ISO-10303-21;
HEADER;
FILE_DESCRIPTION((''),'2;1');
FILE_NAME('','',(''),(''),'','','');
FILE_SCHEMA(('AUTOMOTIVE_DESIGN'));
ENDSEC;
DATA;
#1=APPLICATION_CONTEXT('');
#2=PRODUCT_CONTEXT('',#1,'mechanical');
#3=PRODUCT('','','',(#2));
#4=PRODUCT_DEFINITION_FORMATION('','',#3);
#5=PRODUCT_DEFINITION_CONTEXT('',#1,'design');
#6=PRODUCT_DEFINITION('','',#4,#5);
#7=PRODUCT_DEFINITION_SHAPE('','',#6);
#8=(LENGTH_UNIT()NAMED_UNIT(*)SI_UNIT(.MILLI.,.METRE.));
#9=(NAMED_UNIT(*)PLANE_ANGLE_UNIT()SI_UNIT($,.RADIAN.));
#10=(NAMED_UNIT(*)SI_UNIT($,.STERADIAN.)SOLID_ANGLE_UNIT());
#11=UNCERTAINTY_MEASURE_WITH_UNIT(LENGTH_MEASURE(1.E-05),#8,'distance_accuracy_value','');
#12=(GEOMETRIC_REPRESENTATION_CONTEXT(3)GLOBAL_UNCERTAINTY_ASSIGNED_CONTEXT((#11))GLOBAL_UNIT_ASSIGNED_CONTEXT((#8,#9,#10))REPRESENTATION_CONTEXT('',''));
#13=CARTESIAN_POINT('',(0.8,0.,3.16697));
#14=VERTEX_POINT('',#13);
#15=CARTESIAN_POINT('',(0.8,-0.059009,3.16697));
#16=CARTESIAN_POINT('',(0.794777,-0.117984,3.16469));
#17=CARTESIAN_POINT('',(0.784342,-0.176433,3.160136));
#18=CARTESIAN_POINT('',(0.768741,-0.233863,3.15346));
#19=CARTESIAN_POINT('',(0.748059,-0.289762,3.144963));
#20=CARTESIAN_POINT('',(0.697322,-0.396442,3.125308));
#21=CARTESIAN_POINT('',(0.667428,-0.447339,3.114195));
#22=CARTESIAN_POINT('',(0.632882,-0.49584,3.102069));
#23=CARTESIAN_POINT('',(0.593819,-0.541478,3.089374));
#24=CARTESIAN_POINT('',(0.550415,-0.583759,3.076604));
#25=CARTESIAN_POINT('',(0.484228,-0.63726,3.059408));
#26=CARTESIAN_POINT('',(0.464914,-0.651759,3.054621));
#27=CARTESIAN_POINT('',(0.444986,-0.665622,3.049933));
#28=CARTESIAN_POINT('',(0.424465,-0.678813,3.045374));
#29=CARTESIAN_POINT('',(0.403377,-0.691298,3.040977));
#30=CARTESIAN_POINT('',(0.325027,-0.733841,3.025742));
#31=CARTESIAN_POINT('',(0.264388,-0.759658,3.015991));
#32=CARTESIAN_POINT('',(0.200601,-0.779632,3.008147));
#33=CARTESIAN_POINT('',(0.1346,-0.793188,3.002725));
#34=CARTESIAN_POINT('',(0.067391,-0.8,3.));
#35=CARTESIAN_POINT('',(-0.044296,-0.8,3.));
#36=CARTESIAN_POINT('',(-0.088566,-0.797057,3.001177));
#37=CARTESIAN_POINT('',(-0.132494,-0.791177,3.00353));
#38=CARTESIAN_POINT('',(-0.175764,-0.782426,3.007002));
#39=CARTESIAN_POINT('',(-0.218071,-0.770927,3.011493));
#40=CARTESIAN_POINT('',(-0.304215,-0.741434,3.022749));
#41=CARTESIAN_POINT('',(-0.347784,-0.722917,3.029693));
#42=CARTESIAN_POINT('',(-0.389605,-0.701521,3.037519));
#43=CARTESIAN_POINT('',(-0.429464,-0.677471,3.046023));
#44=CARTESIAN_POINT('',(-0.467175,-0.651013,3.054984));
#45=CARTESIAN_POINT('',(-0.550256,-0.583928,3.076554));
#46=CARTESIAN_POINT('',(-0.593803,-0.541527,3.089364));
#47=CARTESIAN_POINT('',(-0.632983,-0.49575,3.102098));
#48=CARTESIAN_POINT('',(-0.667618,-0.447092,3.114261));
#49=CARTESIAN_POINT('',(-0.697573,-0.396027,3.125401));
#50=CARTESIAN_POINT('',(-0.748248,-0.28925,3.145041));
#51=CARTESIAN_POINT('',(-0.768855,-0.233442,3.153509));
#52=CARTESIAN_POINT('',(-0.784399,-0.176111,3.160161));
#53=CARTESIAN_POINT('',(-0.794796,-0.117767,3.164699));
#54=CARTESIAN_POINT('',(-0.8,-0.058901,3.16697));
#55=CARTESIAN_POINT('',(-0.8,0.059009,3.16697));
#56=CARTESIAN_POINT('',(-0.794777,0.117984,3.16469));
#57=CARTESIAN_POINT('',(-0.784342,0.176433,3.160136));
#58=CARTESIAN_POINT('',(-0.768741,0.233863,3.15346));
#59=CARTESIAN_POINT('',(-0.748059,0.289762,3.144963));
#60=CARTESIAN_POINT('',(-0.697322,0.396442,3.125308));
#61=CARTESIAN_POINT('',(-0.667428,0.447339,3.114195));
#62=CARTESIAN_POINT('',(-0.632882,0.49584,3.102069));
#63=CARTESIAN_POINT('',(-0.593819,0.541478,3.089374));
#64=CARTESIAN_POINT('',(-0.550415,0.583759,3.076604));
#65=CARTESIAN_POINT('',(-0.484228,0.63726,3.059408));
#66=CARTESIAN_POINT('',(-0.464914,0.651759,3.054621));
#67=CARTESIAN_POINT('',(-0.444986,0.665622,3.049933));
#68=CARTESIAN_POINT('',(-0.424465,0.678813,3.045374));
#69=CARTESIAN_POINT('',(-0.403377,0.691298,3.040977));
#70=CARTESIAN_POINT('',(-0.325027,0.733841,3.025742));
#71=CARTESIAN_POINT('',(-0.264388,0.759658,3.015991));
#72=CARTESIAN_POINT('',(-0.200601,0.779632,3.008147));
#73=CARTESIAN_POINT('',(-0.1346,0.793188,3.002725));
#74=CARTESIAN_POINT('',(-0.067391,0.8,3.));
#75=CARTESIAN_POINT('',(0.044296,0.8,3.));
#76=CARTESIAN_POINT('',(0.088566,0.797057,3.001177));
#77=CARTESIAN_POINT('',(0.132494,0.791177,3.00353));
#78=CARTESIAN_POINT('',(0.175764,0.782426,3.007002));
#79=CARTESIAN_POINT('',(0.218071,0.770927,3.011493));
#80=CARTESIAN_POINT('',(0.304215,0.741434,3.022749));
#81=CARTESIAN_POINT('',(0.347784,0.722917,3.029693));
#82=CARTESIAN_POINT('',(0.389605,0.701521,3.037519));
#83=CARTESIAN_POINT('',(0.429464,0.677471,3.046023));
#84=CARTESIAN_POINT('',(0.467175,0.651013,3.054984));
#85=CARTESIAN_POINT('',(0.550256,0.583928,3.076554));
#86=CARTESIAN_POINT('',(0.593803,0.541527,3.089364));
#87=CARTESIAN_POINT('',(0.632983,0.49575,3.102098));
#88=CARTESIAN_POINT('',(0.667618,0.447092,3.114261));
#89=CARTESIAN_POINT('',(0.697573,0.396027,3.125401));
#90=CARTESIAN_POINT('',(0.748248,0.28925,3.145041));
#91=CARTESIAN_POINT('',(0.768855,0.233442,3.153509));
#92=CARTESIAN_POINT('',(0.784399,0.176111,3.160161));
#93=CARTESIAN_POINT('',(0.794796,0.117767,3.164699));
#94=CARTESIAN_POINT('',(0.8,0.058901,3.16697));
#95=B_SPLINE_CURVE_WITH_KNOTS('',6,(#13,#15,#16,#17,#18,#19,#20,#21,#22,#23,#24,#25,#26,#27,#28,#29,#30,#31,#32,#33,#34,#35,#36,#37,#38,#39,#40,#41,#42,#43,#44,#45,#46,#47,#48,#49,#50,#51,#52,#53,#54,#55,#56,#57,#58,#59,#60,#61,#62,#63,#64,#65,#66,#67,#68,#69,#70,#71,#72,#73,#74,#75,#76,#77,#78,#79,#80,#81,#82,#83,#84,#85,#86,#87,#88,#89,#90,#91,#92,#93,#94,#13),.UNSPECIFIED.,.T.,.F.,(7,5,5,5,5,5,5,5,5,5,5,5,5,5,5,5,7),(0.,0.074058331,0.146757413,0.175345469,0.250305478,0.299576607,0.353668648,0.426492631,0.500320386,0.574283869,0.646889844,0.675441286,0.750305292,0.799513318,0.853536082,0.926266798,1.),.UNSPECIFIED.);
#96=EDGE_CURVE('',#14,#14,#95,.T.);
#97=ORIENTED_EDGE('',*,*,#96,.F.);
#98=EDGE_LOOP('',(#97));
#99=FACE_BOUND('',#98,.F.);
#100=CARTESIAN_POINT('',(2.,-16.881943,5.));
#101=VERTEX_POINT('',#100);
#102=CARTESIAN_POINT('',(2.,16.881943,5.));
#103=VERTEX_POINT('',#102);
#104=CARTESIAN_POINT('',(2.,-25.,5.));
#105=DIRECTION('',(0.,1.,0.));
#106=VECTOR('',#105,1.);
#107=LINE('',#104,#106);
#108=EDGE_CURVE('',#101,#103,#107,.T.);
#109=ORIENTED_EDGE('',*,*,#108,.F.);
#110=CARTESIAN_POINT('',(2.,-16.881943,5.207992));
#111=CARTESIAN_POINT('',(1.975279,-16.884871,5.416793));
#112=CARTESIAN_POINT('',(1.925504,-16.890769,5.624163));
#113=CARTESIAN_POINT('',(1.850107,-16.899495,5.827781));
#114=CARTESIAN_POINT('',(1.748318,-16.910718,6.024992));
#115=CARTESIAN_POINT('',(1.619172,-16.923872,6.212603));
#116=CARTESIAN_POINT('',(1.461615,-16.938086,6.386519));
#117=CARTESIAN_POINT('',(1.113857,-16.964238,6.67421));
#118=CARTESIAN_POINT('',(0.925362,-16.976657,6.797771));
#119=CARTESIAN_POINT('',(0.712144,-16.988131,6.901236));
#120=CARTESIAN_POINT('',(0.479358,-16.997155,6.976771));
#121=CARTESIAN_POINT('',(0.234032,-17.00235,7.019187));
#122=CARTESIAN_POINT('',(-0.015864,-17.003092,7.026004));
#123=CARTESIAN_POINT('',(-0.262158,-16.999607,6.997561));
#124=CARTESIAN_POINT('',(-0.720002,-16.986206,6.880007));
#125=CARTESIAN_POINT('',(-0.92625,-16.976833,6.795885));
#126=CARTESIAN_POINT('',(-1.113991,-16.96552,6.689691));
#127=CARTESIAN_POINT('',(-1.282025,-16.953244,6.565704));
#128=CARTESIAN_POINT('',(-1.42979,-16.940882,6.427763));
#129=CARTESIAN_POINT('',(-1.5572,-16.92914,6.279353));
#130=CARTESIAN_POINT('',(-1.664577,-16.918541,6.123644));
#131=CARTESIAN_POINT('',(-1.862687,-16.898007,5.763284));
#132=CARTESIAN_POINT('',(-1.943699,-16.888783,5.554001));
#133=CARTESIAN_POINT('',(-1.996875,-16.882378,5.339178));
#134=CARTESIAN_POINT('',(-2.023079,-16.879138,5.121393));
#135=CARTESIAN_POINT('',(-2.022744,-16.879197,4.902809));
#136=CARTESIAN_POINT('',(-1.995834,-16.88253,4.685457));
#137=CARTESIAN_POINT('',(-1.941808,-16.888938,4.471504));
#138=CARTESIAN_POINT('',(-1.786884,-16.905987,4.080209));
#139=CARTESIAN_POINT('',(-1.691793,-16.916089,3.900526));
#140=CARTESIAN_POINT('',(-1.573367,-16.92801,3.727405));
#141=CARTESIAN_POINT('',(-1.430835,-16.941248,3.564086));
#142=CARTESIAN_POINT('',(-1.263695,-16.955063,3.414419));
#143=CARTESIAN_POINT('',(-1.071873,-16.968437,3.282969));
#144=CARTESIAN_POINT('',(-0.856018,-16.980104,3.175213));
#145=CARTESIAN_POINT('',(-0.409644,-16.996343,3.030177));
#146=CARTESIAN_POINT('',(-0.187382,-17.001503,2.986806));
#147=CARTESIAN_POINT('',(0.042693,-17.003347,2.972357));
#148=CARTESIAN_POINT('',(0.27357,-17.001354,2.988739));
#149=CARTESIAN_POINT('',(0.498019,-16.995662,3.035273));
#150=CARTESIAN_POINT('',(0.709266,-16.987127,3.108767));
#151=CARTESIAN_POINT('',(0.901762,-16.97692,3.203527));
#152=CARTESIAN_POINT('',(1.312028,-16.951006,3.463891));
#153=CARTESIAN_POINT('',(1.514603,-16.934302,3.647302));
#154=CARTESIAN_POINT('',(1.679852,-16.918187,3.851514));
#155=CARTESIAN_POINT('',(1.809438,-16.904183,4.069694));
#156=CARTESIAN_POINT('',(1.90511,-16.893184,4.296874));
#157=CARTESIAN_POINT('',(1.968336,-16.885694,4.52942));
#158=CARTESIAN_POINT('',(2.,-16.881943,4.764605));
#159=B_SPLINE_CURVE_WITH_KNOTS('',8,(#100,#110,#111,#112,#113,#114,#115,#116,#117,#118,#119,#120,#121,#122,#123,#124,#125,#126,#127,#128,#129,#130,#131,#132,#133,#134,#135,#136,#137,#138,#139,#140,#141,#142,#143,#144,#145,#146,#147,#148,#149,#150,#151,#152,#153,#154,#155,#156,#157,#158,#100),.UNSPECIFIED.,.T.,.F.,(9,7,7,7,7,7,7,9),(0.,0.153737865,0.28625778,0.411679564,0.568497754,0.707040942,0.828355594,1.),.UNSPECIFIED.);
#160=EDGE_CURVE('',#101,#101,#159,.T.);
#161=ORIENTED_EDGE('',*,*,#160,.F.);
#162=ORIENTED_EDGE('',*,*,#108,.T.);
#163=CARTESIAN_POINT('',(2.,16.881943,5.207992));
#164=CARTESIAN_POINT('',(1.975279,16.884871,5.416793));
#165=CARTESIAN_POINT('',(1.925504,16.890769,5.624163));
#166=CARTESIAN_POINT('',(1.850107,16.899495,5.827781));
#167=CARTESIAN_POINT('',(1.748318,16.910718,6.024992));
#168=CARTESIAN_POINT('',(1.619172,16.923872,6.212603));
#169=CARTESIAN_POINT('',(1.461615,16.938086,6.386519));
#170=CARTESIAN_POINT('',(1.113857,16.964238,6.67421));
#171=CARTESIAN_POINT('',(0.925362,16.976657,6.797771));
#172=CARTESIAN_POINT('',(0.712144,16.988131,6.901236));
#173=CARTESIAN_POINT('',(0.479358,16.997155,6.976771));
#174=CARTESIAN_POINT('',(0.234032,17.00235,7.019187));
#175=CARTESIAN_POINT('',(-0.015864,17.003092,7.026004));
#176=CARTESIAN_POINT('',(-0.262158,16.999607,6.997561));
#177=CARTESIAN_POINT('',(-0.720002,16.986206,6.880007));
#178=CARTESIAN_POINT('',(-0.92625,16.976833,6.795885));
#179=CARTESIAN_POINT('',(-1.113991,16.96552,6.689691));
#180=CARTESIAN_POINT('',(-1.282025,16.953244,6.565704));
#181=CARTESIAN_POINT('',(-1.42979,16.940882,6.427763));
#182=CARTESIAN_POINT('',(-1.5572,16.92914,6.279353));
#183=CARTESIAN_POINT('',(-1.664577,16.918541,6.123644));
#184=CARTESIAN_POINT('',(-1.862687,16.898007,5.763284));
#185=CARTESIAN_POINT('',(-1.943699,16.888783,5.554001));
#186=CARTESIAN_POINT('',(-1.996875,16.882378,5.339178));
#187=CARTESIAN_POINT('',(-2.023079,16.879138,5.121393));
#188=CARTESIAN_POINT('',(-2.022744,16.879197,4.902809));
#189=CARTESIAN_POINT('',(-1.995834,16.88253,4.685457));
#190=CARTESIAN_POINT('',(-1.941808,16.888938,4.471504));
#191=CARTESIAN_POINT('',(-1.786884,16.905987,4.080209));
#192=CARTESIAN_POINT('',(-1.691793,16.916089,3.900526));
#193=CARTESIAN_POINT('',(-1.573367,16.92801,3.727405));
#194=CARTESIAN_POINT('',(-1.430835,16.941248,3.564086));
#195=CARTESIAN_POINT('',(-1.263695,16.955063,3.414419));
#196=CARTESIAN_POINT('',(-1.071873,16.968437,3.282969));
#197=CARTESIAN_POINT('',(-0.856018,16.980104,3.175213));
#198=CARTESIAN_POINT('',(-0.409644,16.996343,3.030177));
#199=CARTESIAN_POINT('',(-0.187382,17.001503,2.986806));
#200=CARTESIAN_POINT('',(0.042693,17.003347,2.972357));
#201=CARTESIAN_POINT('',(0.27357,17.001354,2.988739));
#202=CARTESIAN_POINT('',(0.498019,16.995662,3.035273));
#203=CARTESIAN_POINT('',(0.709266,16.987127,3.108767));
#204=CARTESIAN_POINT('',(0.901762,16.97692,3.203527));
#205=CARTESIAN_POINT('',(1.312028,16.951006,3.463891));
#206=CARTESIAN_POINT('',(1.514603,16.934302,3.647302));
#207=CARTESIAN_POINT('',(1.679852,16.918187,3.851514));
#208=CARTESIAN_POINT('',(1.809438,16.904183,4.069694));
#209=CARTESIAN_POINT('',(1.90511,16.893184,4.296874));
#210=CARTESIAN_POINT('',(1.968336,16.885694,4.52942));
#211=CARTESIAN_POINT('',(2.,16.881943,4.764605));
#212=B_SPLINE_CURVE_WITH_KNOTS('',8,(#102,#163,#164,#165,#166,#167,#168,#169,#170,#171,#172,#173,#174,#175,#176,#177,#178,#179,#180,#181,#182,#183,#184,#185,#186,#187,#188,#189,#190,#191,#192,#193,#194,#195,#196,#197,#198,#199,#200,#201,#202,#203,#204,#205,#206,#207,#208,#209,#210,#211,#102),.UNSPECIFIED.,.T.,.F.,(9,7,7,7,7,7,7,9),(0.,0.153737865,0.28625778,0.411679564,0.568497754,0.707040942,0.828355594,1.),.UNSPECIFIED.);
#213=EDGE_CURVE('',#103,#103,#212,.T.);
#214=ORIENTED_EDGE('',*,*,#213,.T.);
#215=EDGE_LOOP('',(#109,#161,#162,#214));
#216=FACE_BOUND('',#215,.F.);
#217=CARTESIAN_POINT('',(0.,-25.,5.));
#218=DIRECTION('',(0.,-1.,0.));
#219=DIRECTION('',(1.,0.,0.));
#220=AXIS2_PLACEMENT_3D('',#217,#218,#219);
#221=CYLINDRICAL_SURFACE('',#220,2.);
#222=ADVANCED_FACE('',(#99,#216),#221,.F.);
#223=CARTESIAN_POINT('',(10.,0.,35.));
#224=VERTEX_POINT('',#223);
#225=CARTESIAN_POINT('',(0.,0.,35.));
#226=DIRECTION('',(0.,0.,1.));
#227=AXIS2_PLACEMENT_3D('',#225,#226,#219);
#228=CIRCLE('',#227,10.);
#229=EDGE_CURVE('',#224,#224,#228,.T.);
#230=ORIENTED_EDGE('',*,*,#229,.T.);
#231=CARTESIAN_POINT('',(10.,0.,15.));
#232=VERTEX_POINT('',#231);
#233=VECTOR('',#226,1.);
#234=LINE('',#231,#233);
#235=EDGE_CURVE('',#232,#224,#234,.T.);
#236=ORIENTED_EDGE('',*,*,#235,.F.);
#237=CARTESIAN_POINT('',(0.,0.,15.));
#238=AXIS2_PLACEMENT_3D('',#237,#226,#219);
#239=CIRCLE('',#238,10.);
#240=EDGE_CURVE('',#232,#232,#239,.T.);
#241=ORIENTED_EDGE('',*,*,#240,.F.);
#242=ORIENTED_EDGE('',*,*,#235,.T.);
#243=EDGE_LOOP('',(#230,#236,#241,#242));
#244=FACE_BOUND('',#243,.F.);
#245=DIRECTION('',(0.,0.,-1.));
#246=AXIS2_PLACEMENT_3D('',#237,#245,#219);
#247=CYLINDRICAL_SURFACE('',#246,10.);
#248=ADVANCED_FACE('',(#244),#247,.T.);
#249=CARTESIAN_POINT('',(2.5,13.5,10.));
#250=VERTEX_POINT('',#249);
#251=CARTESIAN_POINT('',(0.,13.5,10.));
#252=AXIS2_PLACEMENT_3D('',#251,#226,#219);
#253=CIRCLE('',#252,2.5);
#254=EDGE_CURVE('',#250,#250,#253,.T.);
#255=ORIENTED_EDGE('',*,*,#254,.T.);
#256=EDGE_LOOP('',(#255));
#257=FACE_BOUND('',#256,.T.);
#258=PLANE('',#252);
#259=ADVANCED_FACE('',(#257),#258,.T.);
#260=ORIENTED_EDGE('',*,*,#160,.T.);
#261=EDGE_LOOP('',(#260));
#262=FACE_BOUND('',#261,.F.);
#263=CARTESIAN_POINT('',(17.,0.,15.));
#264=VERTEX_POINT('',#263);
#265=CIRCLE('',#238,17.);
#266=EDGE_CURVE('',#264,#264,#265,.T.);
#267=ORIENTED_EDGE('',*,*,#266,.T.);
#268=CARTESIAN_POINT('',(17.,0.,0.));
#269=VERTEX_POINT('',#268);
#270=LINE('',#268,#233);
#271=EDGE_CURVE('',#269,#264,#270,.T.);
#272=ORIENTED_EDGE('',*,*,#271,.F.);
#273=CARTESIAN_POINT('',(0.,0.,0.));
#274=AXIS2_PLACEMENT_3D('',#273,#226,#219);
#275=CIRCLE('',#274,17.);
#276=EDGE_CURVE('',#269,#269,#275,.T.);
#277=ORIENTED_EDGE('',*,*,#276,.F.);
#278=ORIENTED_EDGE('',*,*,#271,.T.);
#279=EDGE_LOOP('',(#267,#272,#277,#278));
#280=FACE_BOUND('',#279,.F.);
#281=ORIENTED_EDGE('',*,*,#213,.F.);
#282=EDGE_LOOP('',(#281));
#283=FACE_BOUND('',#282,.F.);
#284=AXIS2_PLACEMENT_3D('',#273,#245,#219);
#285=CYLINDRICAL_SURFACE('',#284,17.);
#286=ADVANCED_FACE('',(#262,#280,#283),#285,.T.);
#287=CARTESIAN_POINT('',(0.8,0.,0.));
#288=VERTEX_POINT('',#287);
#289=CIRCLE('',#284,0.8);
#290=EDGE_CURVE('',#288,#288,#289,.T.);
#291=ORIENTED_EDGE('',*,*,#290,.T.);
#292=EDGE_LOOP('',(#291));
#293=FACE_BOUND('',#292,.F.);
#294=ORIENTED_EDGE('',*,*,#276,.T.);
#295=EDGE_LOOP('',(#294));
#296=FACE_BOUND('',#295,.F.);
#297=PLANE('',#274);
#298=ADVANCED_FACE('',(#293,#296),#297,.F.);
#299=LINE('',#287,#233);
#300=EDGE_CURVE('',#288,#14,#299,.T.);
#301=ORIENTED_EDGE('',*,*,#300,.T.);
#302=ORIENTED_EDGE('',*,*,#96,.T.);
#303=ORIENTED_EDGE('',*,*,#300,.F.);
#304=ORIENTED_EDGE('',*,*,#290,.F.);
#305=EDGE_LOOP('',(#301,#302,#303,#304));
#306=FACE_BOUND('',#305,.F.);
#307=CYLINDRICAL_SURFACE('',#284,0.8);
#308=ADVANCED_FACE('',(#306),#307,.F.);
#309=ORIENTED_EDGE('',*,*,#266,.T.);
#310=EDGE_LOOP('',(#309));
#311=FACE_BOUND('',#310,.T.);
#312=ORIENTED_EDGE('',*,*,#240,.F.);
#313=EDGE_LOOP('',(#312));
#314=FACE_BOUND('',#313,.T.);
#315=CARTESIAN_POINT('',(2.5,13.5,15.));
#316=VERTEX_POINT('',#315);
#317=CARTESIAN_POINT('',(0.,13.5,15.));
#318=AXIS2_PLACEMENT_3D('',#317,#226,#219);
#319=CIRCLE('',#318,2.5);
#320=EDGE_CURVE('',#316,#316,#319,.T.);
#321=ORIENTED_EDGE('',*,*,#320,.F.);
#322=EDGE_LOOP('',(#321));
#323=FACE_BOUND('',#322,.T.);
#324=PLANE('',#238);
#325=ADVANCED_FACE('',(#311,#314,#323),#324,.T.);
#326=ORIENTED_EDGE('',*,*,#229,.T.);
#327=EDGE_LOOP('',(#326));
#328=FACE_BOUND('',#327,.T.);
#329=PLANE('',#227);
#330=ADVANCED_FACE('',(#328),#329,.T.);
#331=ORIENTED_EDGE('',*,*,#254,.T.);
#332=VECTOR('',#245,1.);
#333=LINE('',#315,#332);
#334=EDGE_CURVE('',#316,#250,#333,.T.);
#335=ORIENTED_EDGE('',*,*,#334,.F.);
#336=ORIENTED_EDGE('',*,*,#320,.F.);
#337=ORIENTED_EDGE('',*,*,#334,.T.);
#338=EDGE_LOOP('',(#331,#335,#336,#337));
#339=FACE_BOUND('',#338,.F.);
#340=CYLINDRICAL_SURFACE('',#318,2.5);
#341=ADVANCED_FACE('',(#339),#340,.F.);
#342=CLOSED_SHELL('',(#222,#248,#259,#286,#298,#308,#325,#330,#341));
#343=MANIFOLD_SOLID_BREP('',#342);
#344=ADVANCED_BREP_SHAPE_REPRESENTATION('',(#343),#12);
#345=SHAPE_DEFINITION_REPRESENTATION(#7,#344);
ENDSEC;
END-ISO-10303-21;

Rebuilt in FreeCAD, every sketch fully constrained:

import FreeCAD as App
import Part
import Sketcher

doc = App.newDocument("Part")
params = doc.addObject("Spreadsheet::Sheet", "Params")
for row, (alias, value) in enumerate([
    ("sketch1_diameter", "34 mm"),
    ("pad1_length", "15 mm"),
    ("sketch2_diameter", "20 mm"),
    ("pad2_length", "20 mm"),
    ("sketch3_diameter", "1.6 mm"),
    ("pocket1_length", "5 mm"),
    ("sketch4_diameter", "4 mm"),
    ("sketch5_diameter", "5 mm"),
    ("pocket3_length", "5 mm"),
], start=1):
    params.set(f"A{row}", alias)
    params.set(f"B{row}", "=" + value)
    params.setAlias(f"B{row}", alias)

body = doc.addObject("PartDesign::Body", "Body")

# Sketch on XY plane
sketch1 = doc.addObject("Sketcher::SketchObject", "Sketch")
body.addObject(sketch1)
sketch1.AttachmentSupport = (doc.XY_Plane, [""])
sketch1.MapMode = "FlatFace"
sketch1.addGeometry(Part.Circle(App.Vector(0, 0, 0), App.Vector(0, 0, 1), 17), False)
sketch1.addConstraint([
    Sketcher.Constraint("Coincident", 0, 3, -1, 1),
    Sketcher.Constraint("Diameter", 0, 34.0),
])
sketch1.setExpression("Constraints[1]", "Params.sketch1_diameter")
pad1 = doc.addObject("PartDesign::Pad", "Pad")
body.addObject(pad1)
pad1.Profile = sketch1
pad1.setExpression("Length", "Params.pad1_length")

# Sketch on XY plane
sketch2 = doc.addObject("Sketcher::SketchObject", "Sketch001")
body.addObject(sketch2)
sketch2.AttachmentSupport = (doc.XY_Plane, [""])
sketch2.MapMode = "FlatFace"
sketch2.AttachmentOffset = App.Placement(App.Vector(0, 0, 15), App.Rotation())
sketch2.addGeometry(Part.Circle(App.Vector(0, 0, 0), App.Vector(0, 0, 1), 10), False)
sketch2.addConstraint([
    Sketcher.Constraint("Coincident", 0, 3, -1, 1),
    Sketcher.Constraint("Diameter", 0, 20.0),
])
sketch2.setExpression("Constraints[1]", "Params.sketch2_diameter")
pad2 = doc.addObject("PartDesign::Pad", "Pad001")
body.addObject(pad2)
pad2.Profile = sketch2
pad2.setExpression("Length", "Params.pad2_length")

# Sketch on XY plane
sketch3 = doc.addObject("Sketcher::SketchObject", "Sketch002")
body.addObject(sketch3)
sketch3.AttachmentSupport = (doc.XY_Plane, [""])
sketch3.MapMode = "FlatFace"
sketch3.addGeometry(Part.Circle(App.Vector(0, 0, 0), App.Vector(0, 0, 1), 0.8), False)
sketch3.addConstraint([
    Sketcher.Constraint("Coincident", 0, 3, -1, 1),
    Sketcher.Constraint("Diameter", 0, 1.6),
])
sketch3.setExpression("Constraints[1]", "Params.sketch3_diameter")
pocket1 = doc.addObject("PartDesign::Pocket", "Pocket")
body.addObject(pocket1)
pocket1.Profile = sketch3
pocket1.setExpression("Length", "Params.pocket1_length")
pocket1.Reversed = True

# Sketch on XZ plane
sketch4 = doc.addObject("Sketcher::SketchObject", "Sketch003")
body.addObject(sketch4)
sketch4.AttachmentSupport = (doc.XZ_Plane, [""])
sketch4.MapMode = "FlatFace"
sketch4.AttachmentOffset = App.Placement(App.Vector(0, 0, 25), App.Rotation())
sketch4.addGeometry(Part.Circle(App.Vector(0, 5, 0), App.Vector(0, 0, 1), 2), False)
sketch4.addConstraint([
    Sketcher.Constraint("PointOnObject", 0, 3, -2),
    Sketcher.Constraint("Diameter", 0, 4.0),
    Sketcher.Constraint("DistanceY", -1, 1, 0, 3, 5.0),
])
sketch4.setExpression("Constraints[1]", "Params.sketch4_diameter")
pocket2 = doc.addObject("PartDesign::Pocket", "Pocket001")
body.addObject(pocket2)
pocket2.Profile = sketch4
pocket2.Type = "ThroughAll"

# Sketch on XY plane
sketch5 = doc.addObject("Sketcher::SketchObject", "Sketch004")
body.addObject(sketch5)
sketch5.AttachmentSupport = (doc.XY_Plane, [""])
sketch5.MapMode = "FlatFace"
sketch5.AttachmentOffset = App.Placement(App.Vector(0, 0, 15), App.Rotation())
sketch5.addGeometry(Part.Circle(App.Vector(0, 13.5, 0), App.Vector(0, 0, 1), 2.5), False)
sketch5.addConstraint([
    Sketcher.Constraint("PointOnObject", 0, 3, -2),
    Sketcher.Constraint("Diameter", 0, 5.0),
    Sketcher.Constraint("DistanceY", -1, 1, 0, 3, 13.5),
])
sketch5.setExpression("Constraints[1]", "Params.sketch5_diameter")
pocket3 = doc.addObject("PartDesign::Pocket", "Pocket002")
body.addObject(pocket3)
pocket3.Profile = sketch5
pocket3.setExpression("Length", "Params.pocket3_length")

doc.recompute()
